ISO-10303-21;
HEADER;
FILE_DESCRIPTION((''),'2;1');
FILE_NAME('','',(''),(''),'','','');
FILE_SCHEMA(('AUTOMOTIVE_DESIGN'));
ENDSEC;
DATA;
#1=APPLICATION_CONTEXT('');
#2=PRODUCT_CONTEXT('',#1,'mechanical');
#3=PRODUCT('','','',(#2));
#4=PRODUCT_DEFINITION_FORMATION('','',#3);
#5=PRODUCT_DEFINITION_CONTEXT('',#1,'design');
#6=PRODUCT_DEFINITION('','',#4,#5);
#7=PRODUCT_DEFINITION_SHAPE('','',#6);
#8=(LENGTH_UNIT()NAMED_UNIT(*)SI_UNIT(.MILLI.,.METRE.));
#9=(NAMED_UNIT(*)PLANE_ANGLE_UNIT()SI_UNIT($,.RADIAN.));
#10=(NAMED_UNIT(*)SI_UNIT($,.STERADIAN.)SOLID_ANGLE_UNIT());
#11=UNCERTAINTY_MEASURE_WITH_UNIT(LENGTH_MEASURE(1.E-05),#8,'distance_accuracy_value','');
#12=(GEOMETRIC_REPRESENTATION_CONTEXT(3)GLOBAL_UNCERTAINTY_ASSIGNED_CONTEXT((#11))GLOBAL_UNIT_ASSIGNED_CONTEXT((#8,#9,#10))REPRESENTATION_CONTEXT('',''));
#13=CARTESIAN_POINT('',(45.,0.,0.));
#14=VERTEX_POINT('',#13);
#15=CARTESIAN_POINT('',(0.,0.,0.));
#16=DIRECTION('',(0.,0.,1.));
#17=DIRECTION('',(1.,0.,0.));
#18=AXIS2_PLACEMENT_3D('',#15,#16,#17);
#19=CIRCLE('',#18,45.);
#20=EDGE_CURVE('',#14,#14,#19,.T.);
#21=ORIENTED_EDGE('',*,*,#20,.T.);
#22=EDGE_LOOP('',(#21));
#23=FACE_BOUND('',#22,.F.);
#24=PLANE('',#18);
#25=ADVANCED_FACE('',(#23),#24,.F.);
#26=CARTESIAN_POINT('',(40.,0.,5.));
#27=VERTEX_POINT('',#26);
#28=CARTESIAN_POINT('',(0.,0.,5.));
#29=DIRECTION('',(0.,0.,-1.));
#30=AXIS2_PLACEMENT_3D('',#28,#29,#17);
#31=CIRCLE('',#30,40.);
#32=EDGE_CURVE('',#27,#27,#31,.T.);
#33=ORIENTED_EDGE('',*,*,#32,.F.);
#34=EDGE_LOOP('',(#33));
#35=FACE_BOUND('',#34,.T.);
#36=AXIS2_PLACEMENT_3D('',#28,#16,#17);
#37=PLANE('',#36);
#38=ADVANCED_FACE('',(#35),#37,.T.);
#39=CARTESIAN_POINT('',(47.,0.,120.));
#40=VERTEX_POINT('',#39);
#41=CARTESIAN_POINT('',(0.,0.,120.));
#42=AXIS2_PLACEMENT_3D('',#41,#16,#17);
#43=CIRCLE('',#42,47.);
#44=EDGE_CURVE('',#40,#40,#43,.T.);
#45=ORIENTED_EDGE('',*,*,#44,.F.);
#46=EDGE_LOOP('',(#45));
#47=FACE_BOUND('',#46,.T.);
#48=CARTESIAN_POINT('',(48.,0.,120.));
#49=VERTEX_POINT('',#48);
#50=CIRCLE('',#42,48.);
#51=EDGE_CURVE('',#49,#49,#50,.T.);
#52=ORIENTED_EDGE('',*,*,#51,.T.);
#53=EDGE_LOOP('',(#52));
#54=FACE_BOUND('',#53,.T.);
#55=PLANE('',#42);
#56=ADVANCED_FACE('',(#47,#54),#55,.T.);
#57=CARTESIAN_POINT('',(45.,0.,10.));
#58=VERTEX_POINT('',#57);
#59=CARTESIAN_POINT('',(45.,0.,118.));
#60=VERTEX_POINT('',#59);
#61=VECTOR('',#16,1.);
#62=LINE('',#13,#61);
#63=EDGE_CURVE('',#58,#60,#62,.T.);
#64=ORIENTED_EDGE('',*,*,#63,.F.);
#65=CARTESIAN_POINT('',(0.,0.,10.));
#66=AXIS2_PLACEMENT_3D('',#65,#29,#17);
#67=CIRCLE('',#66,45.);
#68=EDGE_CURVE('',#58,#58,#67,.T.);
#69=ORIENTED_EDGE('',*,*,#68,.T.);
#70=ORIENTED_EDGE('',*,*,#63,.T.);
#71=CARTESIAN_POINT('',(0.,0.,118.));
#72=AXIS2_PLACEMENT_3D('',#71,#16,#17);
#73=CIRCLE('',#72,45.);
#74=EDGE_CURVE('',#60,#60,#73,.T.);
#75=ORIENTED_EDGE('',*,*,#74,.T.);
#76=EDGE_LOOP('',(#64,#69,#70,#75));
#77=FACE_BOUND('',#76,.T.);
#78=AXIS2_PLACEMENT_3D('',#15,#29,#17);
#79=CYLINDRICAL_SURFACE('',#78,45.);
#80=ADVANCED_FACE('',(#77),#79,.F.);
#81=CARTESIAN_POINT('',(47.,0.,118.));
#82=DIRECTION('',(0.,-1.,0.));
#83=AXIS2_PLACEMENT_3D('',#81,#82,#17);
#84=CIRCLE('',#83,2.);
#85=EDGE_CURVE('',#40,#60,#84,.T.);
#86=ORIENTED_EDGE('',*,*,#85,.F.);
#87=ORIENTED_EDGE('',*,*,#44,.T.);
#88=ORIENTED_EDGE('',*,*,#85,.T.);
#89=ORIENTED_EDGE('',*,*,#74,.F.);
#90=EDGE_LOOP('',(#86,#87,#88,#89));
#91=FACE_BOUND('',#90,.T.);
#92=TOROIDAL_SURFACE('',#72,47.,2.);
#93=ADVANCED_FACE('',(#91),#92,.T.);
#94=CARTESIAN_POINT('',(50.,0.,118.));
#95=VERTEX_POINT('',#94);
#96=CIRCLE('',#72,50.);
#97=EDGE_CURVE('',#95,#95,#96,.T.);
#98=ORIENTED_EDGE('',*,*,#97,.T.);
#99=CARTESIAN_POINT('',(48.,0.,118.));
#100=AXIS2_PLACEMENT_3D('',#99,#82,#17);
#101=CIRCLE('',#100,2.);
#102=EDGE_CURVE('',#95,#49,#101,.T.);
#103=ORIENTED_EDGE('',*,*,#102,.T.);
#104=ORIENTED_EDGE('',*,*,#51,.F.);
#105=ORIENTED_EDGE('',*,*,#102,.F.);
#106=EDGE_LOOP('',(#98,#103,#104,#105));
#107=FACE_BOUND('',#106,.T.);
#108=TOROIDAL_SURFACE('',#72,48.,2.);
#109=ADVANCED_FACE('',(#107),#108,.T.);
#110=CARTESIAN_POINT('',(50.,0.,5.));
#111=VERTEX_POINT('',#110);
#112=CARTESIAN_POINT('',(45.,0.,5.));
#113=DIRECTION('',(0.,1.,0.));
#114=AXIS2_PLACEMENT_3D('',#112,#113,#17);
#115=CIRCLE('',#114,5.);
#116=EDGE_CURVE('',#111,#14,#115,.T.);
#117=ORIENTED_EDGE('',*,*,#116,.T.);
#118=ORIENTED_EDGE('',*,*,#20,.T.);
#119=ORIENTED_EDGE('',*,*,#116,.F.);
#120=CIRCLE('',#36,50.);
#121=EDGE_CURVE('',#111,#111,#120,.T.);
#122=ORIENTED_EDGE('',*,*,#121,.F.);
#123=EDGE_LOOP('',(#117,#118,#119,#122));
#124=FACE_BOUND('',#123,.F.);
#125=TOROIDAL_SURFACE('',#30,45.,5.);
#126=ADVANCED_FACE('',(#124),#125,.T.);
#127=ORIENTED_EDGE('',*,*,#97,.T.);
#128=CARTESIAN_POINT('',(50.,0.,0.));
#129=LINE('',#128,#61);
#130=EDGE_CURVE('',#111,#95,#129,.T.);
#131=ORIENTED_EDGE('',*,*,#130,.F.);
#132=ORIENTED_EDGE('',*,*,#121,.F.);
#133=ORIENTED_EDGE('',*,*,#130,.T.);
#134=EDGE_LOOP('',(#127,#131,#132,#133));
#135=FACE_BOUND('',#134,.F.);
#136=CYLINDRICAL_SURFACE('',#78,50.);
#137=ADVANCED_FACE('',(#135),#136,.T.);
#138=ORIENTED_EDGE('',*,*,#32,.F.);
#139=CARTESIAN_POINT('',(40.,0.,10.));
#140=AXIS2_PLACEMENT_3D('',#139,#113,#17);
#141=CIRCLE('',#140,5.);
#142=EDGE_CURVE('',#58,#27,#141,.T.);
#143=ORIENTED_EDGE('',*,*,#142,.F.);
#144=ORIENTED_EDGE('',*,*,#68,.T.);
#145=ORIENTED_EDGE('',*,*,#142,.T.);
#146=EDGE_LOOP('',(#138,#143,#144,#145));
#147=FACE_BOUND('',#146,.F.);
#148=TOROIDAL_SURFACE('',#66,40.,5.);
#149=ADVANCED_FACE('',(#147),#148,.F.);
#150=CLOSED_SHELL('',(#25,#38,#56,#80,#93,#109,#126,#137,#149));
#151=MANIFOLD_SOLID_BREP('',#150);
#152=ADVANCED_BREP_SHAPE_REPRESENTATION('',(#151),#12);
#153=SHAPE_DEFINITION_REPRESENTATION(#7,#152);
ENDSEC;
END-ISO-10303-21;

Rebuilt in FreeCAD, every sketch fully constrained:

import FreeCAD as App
import Part
import Sketcher


def edges_at(feature, points):
    """Names of the edges that pass closest to the given points."""
    edges = feature.Shape.Edges
    near = lambda p: min(range(len(edges)), key=lambda i: edges[i].distToShape(Part.Vertex(*p))[0])
    return sorted({f"Edge{near(p) + 1}" for p in points})


def faces_at(feature, points):
    """Names of the faces that lie closest to the given points."""
    faces = feature.Shape.Faces
    near = lambda p: min(range(len(faces)), key=lambda i: faces[i].distToShape(Part.Vertex(*p))[0])
    return sorted({f"Face{near(p) + 1}" for p in points})

doc = App.newDocument("Part")
params = doc.addObject("Spreadsheet::Sheet", "Params")
for row, (alias, value) in enumerate([
    ("sketch1_diameter", "100 mm"),
    ("pad1_length", "120 mm"),
    ("thickness_wall", "5 mm"),
    ("fillet_radius", "5 mm"),
    ("fillet2_radius", "2 mm"),
], start=1):
    params.set(f"A{row}", alias)
    params.set(f"B{row}", "=" + value)
    params.setAlias(f"B{row}", alias)

body = doc.addObject("PartDesign::Body", "Body")

# Sketch on XY plane
sketch1 = body.newObject("Sketcher::SketchObject", "Sketch")
sketch1.AttachmentSupport = (doc.getObject("XY_Plane"), [""])
sketch1.MapMode = "FlatFace"
sketch1.addGeometry(Part.Circle(App.Vector(0, 0, 0), App.Vector(0, 0, 1), 50), False)
sketch1.addConstraint(Sketcher.Constraint("Coincident", 0, 3, -1, 1))
sketch1.addConstraint(Sketcher.Constraint("Diameter", 0, 100.0))
sketch1.setExpression("Constraints[1]", "Params.sketch1_diameter")
pad1 = body.newObject("PartDesign::Pad", "Pad")
pad1.Profile = sketch1
pad1.setExpression("Length", "Params.pad1_length")
doc.recompute()

thickness = body.newObject("PartDesign::Thickness", "Thickness")
thickness.Base = (pad1, faces_at(pad1, [(0, 0, 120)]))
thickness.setExpression("Value", "Params.thickness_wall")
thickness.Reversed = True
thickness.Join = "Arc"
doc.recompute()

fillet = body.newObject("PartDesign::Fillet", "Fillet")
fillet.Base = (thickness, edges_at(thickness, [(-45, 0, 5), (-50, 0, 0)]))
fillet.setExpression("Radius", "Params.fillet_radius")
doc.recompute()

fillet2 = body.newObject("PartDesign::Fillet", "Fillet001")
fillet2.Base = (fillet, edges_at(fillet, [(-45, 0, 120), (-50, 0, 120)]))
fillet2.setExpression("Radius", "Params.fillet2_radius")

doc.recompute()
